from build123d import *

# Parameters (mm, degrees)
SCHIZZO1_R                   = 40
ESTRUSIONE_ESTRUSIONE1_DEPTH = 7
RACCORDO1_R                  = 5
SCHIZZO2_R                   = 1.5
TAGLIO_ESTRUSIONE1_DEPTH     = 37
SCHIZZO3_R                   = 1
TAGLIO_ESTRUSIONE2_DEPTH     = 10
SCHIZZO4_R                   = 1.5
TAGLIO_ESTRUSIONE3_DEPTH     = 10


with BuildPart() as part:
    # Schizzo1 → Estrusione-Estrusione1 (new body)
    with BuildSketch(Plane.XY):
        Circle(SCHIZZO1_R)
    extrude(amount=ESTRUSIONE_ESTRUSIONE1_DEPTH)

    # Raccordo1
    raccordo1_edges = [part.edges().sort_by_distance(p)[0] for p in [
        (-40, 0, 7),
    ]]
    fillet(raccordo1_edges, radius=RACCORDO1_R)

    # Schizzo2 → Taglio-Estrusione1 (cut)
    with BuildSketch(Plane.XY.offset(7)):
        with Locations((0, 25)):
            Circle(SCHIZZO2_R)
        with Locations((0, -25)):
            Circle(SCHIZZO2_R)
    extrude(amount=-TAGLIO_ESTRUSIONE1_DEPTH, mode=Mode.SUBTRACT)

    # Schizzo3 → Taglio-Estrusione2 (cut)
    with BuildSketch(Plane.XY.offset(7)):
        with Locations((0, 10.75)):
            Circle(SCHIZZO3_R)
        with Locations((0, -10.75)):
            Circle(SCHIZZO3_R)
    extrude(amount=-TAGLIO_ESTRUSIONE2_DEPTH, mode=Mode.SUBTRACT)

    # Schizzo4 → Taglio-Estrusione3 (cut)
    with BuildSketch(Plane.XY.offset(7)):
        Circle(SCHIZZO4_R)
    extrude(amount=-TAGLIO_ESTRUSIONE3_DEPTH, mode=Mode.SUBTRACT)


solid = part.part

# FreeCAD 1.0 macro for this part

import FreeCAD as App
import Part
import Sketcher

V = App.Vector


def edges_at(feature, points):
    """Names of the edges that pass closest to the given points."""
    edges = feature.Shape.Edges
    near = lambda p: min(range(len(edges)), key=lambda i: edges[i].distToShape(Part.Vertex(*p))[0])
    return sorted({f"Edge{near(p) + 1}" for p in points})

doc = App.newDocument("Part")
params = doc.addObject("Spreadsheet::Sheet", "Params")
for row, (alias, value) in enumerate([
    ("sketch1_diameter", "80 mm"),
    ("pad1_length", "7 mm"),
    ("fillet_radius", "5 mm"),
    ("sketch2_diameter", "3 mm"),
    ("pocket1_length", "37 mm"),
    ("sketch3_diameter", "2 mm"),
    ("pocket2_length", "10 mm"),
    ("sketch4_diameter", "3 mm"),
    ("pocket3_length", "10 mm"),
], start=1):
    params.set(f"A{row}", alias)
    params.set(f"B{row}", "=" + value)
    params.setAlias(f"B{row}", alias)

body = doc.addObject("PartDesign::Body", "Body")

sketch1 = body.newObject("Sketcher::SketchObject", "Sketch")
sketch1.AttachmentSupport = (doc.getObject("XY_Plane"), [""])
sketch1.MapMode = "FlatFace"
sketch1.addGeometry(Part.Circle(V(0, 0, 0), V(0, 0, 1), 40), False)
sketch1.addConstraint(Sketcher.Constraint("Coincident", 0, 3, -1, 1))
sketch1.addConstraint(Sketcher.Constraint("Diameter", 0, 80.0))
sketch1.setExpression("Constraints[1]", "Params.sketch1_diameter")
pad1 = body.newObject("PartDesign::Pad", "Pad")
pad1.Profile = sketch1
pad1.setExpression("Length", "Params.pad1_length")
doc.recompute()

fillet = body.newObject("PartDesign::Fillet", "Fillet")
fillet.Base = (pad1, edges_at(pad1, [(-40, 0, 7)]))
fillet.setExpression("Radius", "Params.fillet_radius")

sketch2 = body.newObject("Sketcher::SketchObject", "Sketch001")
sketch2.AttachmentSupport = (doc.getObject("XY_Plane"), [""])
sketch2.MapMode = "FlatFace"
sketch2.AttachmentOffset = App.Placement(V(0, 0, 7), App.Rotation())
sketch2.addGeometry(Part.Circle(V(0, 25, 0), V(0, 0, 1), 1.5), False)
sketch2.addGeometry(Part.Circle(V(0, -25, 0), V(0, 0, 1), 1.5), False)
sketch2.addConstraint(Sketcher.Constraint("Equal", 0, 1))
sketch2.addConstraint(Sketcher.Constraint("Symmetric", 0, 3, 1, 3, -1, 1))
sketch2.addConstraint(Sketcher.Constraint("PointOnObject", 0, 3, -2))
sketch2.addConstraint(Sketcher.Constraint("Diameter", 0, 3.0))
sketch2.addConstraint(Sketcher.Constraint("DistanceY", -1, 1, 0, 3, 25.0))
sketch2.setExpression("Constraints[3]", "Params.sketch2_diameter")
pocket1 = body.newObject("PartDesign::Pocket", "Pocket")
pocket1.Profile = sketch2
pocket1.setExpression("Length", "Params.pocket1_length")

sketch3 = body.newObject("Sketcher::SketchObject", "Sketch002")
sketch3.AttachmentSupport = (doc.getObject("XY_Plane"), [""])
sketch3.MapMode = "FlatFace"
sketch3.AttachmentOffset = App.Placement(V(0, 0, 7), App.Rotation())
sketch3.addGeometry(Part.Circle(V(0, 10.8, 0), V(0, 0, 1), 1), False)
sketch3.addGeometry(Part.Circle(V(0, -10.8, 0), V(0, 0, 1), 1), False)
sketch3.addConstraint(Sketcher.Constraint("Equal", 0, 1))
sketch3.addConstraint(Sketcher.Constraint("Symmetric", 0, 3, 1, 3, -1, 1))
sketch3.addConstraint(Sketcher.Constraint("PointOnObject", 0, 3, -2))
sketch3.addConstraint(Sketcher.Constraint("Diameter", 0, 2.0))
sketch3.addConstraint(Sketcher.Constraint("DistanceY", 1, 3, 0, 3, 21.5))
sketch3.setExpression("Constraints[3]", "Params.sketch3_diameter")
pocket2 = body.newObject("PartDesign::Pocket", "Pocket001")
pocket2.Profile = sketch3
pocket2.setExpression("Length", "Params.pocket2_length")

sketch4 = body.newObject("Sketcher::SketchObject", "Sketch003")
sketch4.AttachmentSupport = (doc.getObject("XY_Plane"), [""])
sketch4.MapMode = "FlatFace"
sketch4.AttachmentOffset = App.Placement(V(0, 0, 7), App.Rotation())
sketch4.addGeometry(Part.Circle(V(0, 0, 0), V(0, 0, 1), 1.5), False)
sketch4.addConstraint(Sketcher.Constraint("Coincident", 0, 3, -1, 1))
sketch4.addConstraint(Sketcher.Constraint("Diameter", 0, 3.0))
sketch4.setExpression("Constraints[1]", "Params.sketch4_diameter")
pocket3 = body.newObject("PartDesign::Pocket", "Pocket002")
pocket3.Profile = sketch4
pocket3.setExpression("Length", "Params.pocket3_length")

doc.recompute()
